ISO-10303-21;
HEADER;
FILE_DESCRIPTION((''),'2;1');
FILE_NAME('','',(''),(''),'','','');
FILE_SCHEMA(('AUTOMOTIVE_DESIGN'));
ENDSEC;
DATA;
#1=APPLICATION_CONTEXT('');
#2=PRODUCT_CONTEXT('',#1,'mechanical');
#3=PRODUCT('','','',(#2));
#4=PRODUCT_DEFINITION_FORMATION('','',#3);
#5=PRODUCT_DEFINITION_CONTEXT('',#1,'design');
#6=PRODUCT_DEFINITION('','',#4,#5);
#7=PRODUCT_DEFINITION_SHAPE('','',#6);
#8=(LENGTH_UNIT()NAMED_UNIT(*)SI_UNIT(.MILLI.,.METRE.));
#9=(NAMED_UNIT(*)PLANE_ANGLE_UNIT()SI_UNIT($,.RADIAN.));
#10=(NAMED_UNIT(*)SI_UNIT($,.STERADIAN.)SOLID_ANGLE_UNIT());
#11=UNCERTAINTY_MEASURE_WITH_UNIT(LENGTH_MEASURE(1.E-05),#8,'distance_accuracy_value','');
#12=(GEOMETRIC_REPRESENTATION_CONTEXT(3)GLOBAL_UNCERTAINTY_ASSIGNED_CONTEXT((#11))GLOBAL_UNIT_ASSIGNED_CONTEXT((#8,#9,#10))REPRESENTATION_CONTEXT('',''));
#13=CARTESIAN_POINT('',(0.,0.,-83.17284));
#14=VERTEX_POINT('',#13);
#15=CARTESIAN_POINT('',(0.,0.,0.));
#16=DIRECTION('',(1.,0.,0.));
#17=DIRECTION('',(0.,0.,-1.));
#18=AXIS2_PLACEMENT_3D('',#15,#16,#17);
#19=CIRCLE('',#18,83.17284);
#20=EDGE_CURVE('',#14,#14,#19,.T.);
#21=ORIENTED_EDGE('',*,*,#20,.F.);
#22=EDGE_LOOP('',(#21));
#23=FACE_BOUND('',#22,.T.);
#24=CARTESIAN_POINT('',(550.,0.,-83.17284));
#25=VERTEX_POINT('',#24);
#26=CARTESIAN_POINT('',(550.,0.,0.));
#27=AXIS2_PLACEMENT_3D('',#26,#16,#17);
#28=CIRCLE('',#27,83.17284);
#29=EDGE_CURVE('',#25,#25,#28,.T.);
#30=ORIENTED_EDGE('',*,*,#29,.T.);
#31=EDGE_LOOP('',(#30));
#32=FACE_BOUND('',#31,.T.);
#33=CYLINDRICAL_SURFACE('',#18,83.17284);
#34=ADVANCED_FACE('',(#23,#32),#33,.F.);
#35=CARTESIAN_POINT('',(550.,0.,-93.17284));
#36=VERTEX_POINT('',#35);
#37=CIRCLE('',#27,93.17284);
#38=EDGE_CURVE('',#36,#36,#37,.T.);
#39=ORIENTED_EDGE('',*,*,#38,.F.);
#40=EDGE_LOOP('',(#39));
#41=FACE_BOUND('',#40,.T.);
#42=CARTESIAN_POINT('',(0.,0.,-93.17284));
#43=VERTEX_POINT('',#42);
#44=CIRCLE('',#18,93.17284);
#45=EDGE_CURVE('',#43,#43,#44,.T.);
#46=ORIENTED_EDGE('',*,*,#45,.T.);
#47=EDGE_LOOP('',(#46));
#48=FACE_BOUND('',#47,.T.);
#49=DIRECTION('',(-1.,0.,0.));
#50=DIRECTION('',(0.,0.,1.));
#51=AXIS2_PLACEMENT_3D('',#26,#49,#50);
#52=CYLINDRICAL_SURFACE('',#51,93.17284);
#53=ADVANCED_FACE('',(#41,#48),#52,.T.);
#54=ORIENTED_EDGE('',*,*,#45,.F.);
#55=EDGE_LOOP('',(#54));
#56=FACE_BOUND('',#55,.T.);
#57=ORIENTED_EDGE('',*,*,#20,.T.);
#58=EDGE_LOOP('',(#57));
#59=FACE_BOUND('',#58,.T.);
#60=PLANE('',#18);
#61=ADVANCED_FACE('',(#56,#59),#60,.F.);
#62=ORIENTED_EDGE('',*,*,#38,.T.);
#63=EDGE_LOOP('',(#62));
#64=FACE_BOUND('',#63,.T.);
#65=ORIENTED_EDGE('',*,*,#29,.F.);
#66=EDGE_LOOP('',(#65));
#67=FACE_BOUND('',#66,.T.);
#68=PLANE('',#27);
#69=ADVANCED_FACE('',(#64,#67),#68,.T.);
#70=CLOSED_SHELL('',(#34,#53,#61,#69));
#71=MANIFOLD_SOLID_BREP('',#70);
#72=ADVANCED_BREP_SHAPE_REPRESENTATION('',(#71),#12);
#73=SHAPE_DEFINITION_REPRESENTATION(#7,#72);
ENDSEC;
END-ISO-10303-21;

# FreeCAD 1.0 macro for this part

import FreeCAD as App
import Part
import Sketcher

doc = App.newDocument("Part")
body = doc.addObject("PartDesign::Body", "Body")

sketch1 = body.newObject("Sketcher::SketchObject", "Sketch")
sketch1.AttachmentSupport = (doc.getObject("YZ_Plane"), [""])
sketch1.MapMode = "FlatFace"
sketch1.addGeometry(Part.Circle(App.Vector(0, 0, 0), App.Vector(0, 0, 1), 93.17284), False)
sketch1.addConstraint(Sketcher.Constraint("Coincident", 0, 3, -1, 1))
sketch1.addConstraint(Sketcher.Constraint("Diameter", 0, 186.34568))
pad1 = body.newObject("PartDesign::Pad", "Pad")
pad1.Profile = sketch1
pad1.Length = 550

sketch2 = body.newObject("Sketcher::SketchObject", "Sketch001")
sketch2.AttachmentSupport = (doc.getObject("YZ_Plane"), [""])
sketch2.MapMode = "FlatFace"
sketch2.AttachmentOffset = App.Placement(App.Vector(0, 0, 550), App.Rotation())
sketch2.addGeometry(Part.Circle(App.Vector(0, 0, 0), App.Vector(0, 0, 1), 83.17284), False)
sketch2.addConstraint(Sketcher.Constraint("Coincident", 0, 3, -1, 1))
sketch2.addConstraint(Sketcher.Constraint("Diameter", 0, 166.34568))
pocket1 = body.newObject("PartDesign::Pocket", "Pocket")
pocket1.Profile = sketch2
pocket1.Type = "ThroughAll"

doc.recompute()
